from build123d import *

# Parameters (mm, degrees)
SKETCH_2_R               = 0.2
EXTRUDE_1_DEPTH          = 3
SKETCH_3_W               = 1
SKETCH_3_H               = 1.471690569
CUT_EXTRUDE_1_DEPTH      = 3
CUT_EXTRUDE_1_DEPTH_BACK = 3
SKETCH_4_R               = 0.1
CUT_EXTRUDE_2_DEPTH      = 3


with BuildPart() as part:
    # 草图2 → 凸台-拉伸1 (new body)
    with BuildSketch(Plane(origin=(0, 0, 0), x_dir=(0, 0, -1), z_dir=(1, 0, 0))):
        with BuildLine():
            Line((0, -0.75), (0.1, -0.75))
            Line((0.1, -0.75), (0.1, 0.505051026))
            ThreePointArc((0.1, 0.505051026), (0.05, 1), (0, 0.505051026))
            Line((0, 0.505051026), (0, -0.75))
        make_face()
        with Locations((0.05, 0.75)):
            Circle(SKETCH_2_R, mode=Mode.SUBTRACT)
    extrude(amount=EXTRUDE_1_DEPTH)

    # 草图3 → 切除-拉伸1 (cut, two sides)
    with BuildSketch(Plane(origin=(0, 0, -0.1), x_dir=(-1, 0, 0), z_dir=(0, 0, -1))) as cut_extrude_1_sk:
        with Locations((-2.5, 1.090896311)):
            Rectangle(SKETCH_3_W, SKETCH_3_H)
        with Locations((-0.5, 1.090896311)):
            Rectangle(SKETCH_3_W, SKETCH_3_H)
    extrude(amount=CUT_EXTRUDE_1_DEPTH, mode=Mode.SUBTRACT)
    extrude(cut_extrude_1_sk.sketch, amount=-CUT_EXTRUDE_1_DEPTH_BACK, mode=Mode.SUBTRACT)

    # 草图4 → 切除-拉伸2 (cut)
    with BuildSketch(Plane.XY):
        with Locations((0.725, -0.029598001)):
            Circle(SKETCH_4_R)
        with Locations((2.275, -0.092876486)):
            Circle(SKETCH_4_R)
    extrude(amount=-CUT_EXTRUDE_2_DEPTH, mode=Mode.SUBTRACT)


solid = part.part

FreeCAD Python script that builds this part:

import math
import FreeCAD as App
import Part
import Sketcher

V = App.Vector
Q = App.Units.Quantity

doc = App.newDocument("Part")
body = doc.addObject("PartDesign::Body", "Body")

# Sketch on YZ plane
sketch1 = body.newObject("Sketcher::SketchObject", "Sketch")
sketch1.AttachmentSupport = (doc.getObject("YZ_Plane"), [""])
sketch1.MapMode = "FlatFace"
sketch1.addGeometry(Part.LineSegment(V(-0.75, 0, 0), V(-0.75, -0.1, 0)), False)
sketch1.addGeometry(Part.LineSegment(V(-0.75, -0.1, 0), V(0.51, -0.1, 0)), False)
sketch1.addGeometry(Part.ArcOfCircle(Part.Circle(V(0.75, -0.05, 0), V(0, 0, 1), 0.25), math.radians(-168), math.radians(168)), False)
sketch1.addGeometry(Part.LineSegment(V(0.51, 0, 0), V(-0.75, 0, 0)), False)
sketch1.addGeometry(Part.Circle(V(0.75, -0.05, 0), V(0, 0, 1), 0.2), False)
sketch1.addConstraint(Sketcher.Constraint("Coincident", 0, 2, 1, 1))
sketch1.addConstraint(Sketcher.Constraint("Coincident", 1, 2, 2, 1))
sketch1.addConstraint(Sketcher.Constraint("Coincident", 2, 2, 3, 1))
sketch1.addConstraint(Sketcher.Constraint("Coincident", 3, 2, 0, 1))
sketch1.addConstraint(Sketcher.Constraint("Vertical", 0))
sketch1.addConstraint(Sketcher.Constraint("Horizontal", 1))
sketch1.addConstraint(Sketcher.Constraint("Horizontal", 3))
sketch1.addConstraint(Sketcher.Constraint("Coincident", 4, 3, 2, 3))
sketch1.addConstraint(Sketcher.Constraint("PointOnObject", 2, 2, -1))
sketch1.addConstraint(Sketcher.Constraint("Vertical", 1, 2, 2, 2))
sketch1.addConstraint(Sketcher.Constraint("Diameter", 4, Q("0.4 mm")))
sketch1.addConstraint(Sketcher.Constraint("Radius", 2, Q("0.25 mm")))
sketch1.addConstraint(Sketcher.Constraint("DistanceY", 0, 2, 0, 1, Q("0.1 mm")))
sketch1.addConstraint(Sketcher.Constraint("DistanceX", 0, 2, 2, 3, Q("1.5 mm")))
sketch1.addConstraint(Sketcher.Constraint("DistanceX", -1, 1, 2, 3, Q("0.75 mm")))
pad1 = body.newObject("PartDesign::Pad", "Pad")
pad1.Profile = sketch1
pad1.Length = 3

# Sketch on XY plane
sketch2 = body.newObject("Sketcher::SketchObject", "Sketch001")
sketch2.AttachmentSupport = (doc.getObject("XY_Plane"), [""])
sketch2.MapMode = "FlatFace"
sketch2.AttachmentOffset = App.Placement(V(0, 0, -0.1), App.Rotation())
sketch2.addGeometry(Part.LineSegment(V(3, 1.8, 0), V(3, 0.4, 0)), False)
sketch2.addGeometry(Part.LineSegment(V(3, 0.4, 0), V(2, 0.4, 0)), False)
sketch2.addGeometry(Part.LineSegment(V(2, 0.4, 0), V(2, 1.8, 0)), False)
sketch2.addGeometry(Part.LineSegment(V(2, 1.8, 0), V(3, 1.8, 0)), False)
sketch2.addGeometry(Part.LineSegment(V(1, 1.8, 0), V(1, 0.4, 0)), False)
sketch2.addGeometry(Part.LineSegment(V(1, 0.4, 0), V(0, 0.4, 0)), False)
sketch2.addGeometry(Part.LineSegment(V(0, 0.4, 0), V(0, 1.8, 0)), False)
sketch2.addGeometry(Part.LineSegment(V(0, 1.8, 0), V(1, 1.8, 0)), False)
sketch2.addConstraint(Sketcher.Constraint("Coincident", 0, 2, 1, 1))
sketch2.addConstraint(Sketcher.Constraint("Coincident", 1, 2, 2, 1))
sketch2.addConstraint(Sketcher.Constraint("Coincident", 2, 2, 3, 1))
sketch2.addConstraint(Sketcher.Constraint("Coincident", 3, 2, 0, 1))
sketch2.addConstraint(Sketcher.Constraint("Coincident", 4, 2, 5, 1))
sketch2.addConstraint(Sketcher.Constraint("Coincident", 5, 2, 6, 1))
sketch2.addConstraint(Sketcher.Constraint("Coincident", 6, 2, 7, 1))
sketch2.addConstraint(Sketcher.Constraint("Coincident", 7, 2, 4, 1))
sketch2.addConstraint(Sketcher.Constraint("Vertical", 0))
sketch2.addConstraint(Sketcher.Constraint("Horizontal", 1))
sketch2.addConstraint(Sketcher.Constraint("Vertical", 2))
sketch2.addConstraint(Sketcher.Constraint("Horizontal", 3))
sketch2.addConstraint(Sketcher.Constraint("Vertical", 4))
sketch2.addConstraint(Sketcher.Constraint("Horizontal", 5))
sketch2.addConstraint(Sketcher.Constraint("Vertical", 6))
sketch2.addConstraint(Sketcher.Constraint("Horizontal", 7))
sketch2.addConstraint(Sketcher.Constraint("PointOnObject", 5, 2, -2))
sketch2.addConstraint(Sketcher.Constraint("Horizontal", 1, 2, 4, 2))
sketch2.addConstraint(Sketcher.Constraint("Horizontal", 3, 2, 6, 2))
sketch2.addConstraint(Sketcher.Constraint("Equal", 3, 5))
sketch2.addConstraint(Sketcher.Constraint("DistanceX", 1, 2, 1, 1, Q("1 mm")))
sketch2.addConstraint(Sketcher.Constraint("DistanceX", -1, 1, 0, 2, Q("3 mm")))
sketch2.addConstraint(Sketcher.Constraint("DistanceY", 0, 2, 0, 1, Q("1.471691 mm")))
sketch2.addConstraint(Sketcher.Constraint("DistanceY", -1, 1, 0, 2, Q("0.355051 mm")))
pocket1 = body.newObject("PartDesign::Pocket", "Pocket")
pocket1.Profile = sketch2
pocket1.Type = "ThroughAll"
pocket1.Midplane = True

# Sketch on XY plane
sketch3 = body.newObject("Sketcher::SketchObject", "Sketch002")
sketch3.AttachmentSupport = (doc.getObject("XY_Plane"), [""])
sketch3.MapMode = "FlatFace"
sketch3.addGeometry(Part.Circle(V(0.72, -0.03, 0), V(0, 0, 1), 0.1), False)
sketch3.addGeometry(Part.Circle(V(2.27, -0.09, 0), V(0, 0, 1), 0.1), False)
sketch3.addConstraint(Sketcher.Constraint("Equal", 0, 1))
sketch3.addConstraint(Sketcher.Constraint("Diameter", 0, Q("0.2 mm")))
sketch3.addConstraint(Sketcher.Constraint("DistanceX", 0, 3, 1, 3, Q("1.55 mm")))
sketch3.addConstraint(Sketcher.Constraint("DistanceX", -1, 1, 0, 3, Q("0.725 mm")))
sketch3.addConstraint(Sketcher.Constraint("DistanceY", 0, 3, -1, 1, Q("0.029598 mm")))
sketch3.addConstraint(Sketcher.Constraint("DistanceY", 1, 3, 0, 3, Q("0.063278 mm")))
pocket2 = body.newObject("PartDesign::Pocket", "Pocket001")
pocket2.Profile = sketch3
pocket2.Length = 3

doc.recompute()
